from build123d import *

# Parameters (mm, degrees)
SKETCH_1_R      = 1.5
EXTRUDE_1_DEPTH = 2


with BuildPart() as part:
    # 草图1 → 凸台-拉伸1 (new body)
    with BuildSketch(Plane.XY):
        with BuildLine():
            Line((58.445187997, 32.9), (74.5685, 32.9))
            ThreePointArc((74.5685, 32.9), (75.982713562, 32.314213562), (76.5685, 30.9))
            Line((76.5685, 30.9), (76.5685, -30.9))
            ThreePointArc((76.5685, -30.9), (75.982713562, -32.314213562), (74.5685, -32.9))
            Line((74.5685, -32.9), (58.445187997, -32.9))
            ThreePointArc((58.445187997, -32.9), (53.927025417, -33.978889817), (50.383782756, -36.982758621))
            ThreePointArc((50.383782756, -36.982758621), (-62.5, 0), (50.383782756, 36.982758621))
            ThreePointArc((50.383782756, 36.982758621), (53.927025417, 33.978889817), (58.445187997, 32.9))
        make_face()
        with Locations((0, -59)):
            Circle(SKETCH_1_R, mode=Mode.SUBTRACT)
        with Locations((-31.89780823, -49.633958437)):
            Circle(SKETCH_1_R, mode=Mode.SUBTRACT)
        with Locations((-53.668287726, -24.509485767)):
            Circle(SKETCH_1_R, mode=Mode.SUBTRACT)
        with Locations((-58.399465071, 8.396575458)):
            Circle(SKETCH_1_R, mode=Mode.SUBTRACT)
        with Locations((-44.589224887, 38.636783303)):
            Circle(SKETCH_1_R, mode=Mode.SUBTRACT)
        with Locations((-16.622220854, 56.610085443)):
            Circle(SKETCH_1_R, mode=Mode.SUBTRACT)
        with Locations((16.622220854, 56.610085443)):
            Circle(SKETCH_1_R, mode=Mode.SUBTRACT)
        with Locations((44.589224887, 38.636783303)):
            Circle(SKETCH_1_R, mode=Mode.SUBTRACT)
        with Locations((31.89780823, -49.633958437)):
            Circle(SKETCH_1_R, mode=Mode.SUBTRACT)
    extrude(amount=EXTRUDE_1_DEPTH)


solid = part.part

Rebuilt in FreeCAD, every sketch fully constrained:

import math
import FreeCAD as App
import Part
import Sketcher

V = App.Vector
Q = App.Units.Quantity

doc = App.newDocument("Part")
body = doc.addObject("PartDesign::Body", "Body")

sketch1 = doc.addObject("Sketcher::SketchObject", "Sketch")
body.addObject(sketch1)
sketch1.AttachmentSupport = (doc.XY_Plane, [""])
sketch1.MapMode = "FlatFace"
sketch1.addGeometry(Part.LineSegment(V(74.5685, 32.9, 0), V(58.445188, 32.9, 0)), False)
sketch1.addGeometry(Part.ArcOfCircle(Part.Circle(V(58.445188, 42.9, 0), V(0, 0, 1), 10), math.radians(-143.720546), math.radians(-90)), False)
sketch1.addGeometry(Part.ArcOfCircle(Part.Circle(V(0, 0, 0), V(0, 0, 1), 62.5), math.radians(36.279454), math.radians(323.720546)), False)
sketch1.addGeometry(Part.ArcOfCircle(Part.Circle(V(58.445188, -42.9, 0), V(0, 0, 1), 10), math.radians(90), math.radians(143.720546)), False)
sketch1.addGeometry(Part.LineSegment(V(58.445188, -32.9, 0), V(74.5685, -32.9, 0)), False)
sketch1.addGeometry(Part.ArcOfCircle(Part.Circle(V(74.5685, -30.9, 0), V(0, 0, 1), 2), math.radians(-90), math.radians(0)), False)
sketch1.addGeometry(Part.LineSegment(V(76.5685, -30.9, 0), V(76.5685, 30.9, 0)), False)
sketch1.addGeometry(Part.ArcOfCircle(Part.Circle(V(74.5685, 30.9, 0), V(0, 0, 1), 2), math.radians(0), math.radians(90)), False)
sketch1.addGeometry(Part.Circle(V(31.897808, -49.633958, 0), V(0, 0, 1), 1.5), False)
sketch1.addGeometry(Part.Circle(V(0, -59, 0), V(0, 0, 1), 1.5), False)
sketch1.addGeometry(Part.Circle(V(-31.897808, -49.633958, 0), V(0, 0, 1), 1.5), False)
sketch1.addGeometry(Part.Circle(V(-53.668288, -24.509486, 0), V(0, 0, 1), 1.5), False)
sketch1.addGeometry(Part.Circle(V(44.589225, 38.636783, 0), V(0, 0, 1), 1.5), False)
sketch1.addGeometry(Part.Circle(V(16.622221, 56.610085, 0), V(0, 0, 1), 1.5), False)
sketch1.addGeometry(Part.Circle(V(-58.399465, 8.396575, 0), V(0, 0, 1), 1.5), False)
sketch1.addGeometry(Part.Circle(V(-16.622221, 56.610085, 0), V(0, 0, 1), 1.5), False)
sketch1.addGeometry(Part.Circle(V(-44.589225, 38.636783, 0), V(0, 0, 1), 1.5), False)
sketch1.addConstraint(Sketcher.Constraint("Tangent", 0, 2, 1, 2))
sketch1.addConstraint(Sketcher.Constraint("Tangent", 1, 1, 2, 1))
sketch1.addConstraint(Sketcher.Constraint("Tangent", 2, 2, 3, 2))
sketch1.addConstraint(Sketcher.Constraint("Tangent", 3, 1, 4, 1))
sketch1.addConstraint(Sketcher.Constraint("Tangent", 4, 2, 5, 1))
sketch1.addConstraint(Sketcher.Constraint("Tangent", 5, 2, 6, 1))
sketch1.addConstraint(Sketcher.Constraint("Tangent", 6, 2, 7, 1))
sketch1.addConstraint(Sketcher.Constraint("Tangent", 7, 2, 0, 1))
sketch1.addConstraint(Sketcher.Constraint("Horizontal", 0))
sketch1.addConstraint(Sketcher.Constraint("Horizontal", 4))
sketch1.addConstraint(Sketcher.Constraint("Vertical", 6))
sketch1.addConstraint(Sketcher.Constraint("Coincident", 2, 3, -1, 1))
sketch1.addConstraint(Sketcher.Constraint("Equal", 1, 3))
sketch1.addConstraint(Sketcher.Constraint("Equal", 5, 7))
sketch1.addConstraint(Sketcher.Constraint("Equal", 8, 9))
sketch1.addConstraint(Sketcher.Constraint("Equal", 9, 10))
sketch1.addConstraint(Sketcher.Constraint("Equal", 10, 11))
sketch1.addConstraint(Sketcher.Constraint("Equal", 11, 12))
sketch1.addConstraint(Sketcher.Constraint("Equal", 12, 13))
sketch1.addConstraint(Sketcher.Constraint("Equal", 13, 14))
sketch1.addConstraint(Sketcher.Constraint("Equal", 14, 15))
sketch1.addConstraint(Sketcher.Constraint("Equal", 15, 16))
sketch1.addConstraint(Sketcher.Constraint("Symmetric", 8, 3, 10, 3, -2))
sketch1.addConstraint(Sketcher.Constraint("Symmetric", 13, 3, 15, 3, -2))
sketch1.addConstraint(Sketcher.Constraint("Symmetric", 12, 3, 16, 3, -2))
sketch1.addConstraint(Sketcher.Constraint("PointOnObject", 9, 3, -2))
sketch1.addConstraint(Sketcher.Constraint("Vertical", 1, 3, 3, 3))
sketch1.addConstraint(Sketcher.Constraint("Diameter", 8, Q("3 mm")))
sketch1.addConstraint(Sketcher.Constraint("Radius", 1, Q("10 mm")))
sketch1.addConstraint(Sketcher.Constraint("Radius", 5, Q("2 mm")))
sketch1.addConstraint(Sketcher.Constraint("Radius", 2, Q("62.5 mm")))
sketch1.addConstraint(Sketcher.Constraint("DistanceY", 6, 1, 6, 2, Q("61.8 mm")))
sketch1.addConstraint(Sketcher.Constraint("DistanceY", 9, 3, -1, 1, Q("59 mm")))
sketch1.addConstraint(Sketcher.Constraint("DistanceX", -1, 1, 5, 3, Q("74.5685 mm")))
sketch1.addConstraint(Sketcher.Constraint("DistanceY", 8, 3, 2, 2, Q("12.6512 mm")))
sketch1.addConstraint(Sketcher.Constraint("DistanceX", -1, 1, 8, 3, Q("31.897808 mm")))
sketch1.addConstraint(Sketcher.Constraint("DistanceX", -1, 1, 13, 3, Q("16.622221 mm")))
sketch1.addConstraint(Sketcher.Constraint("DistanceX", 11, 3, 10, 3, Q("21.770479 mm")))
sketch1.addConstraint(Sketcher.Constraint("DistanceY", 11, 3, 14, 3, Q("32.906061 mm")))
sketch1.addConstraint(Sketcher.Constraint("DistanceY", 14, 3, 13, 3, Q("48.21351 mm")))
sketch1.addConstraint(Sketcher.Constraint("DistanceX", 14, 3, 16, 3, Q("13.81024 mm")))
sketch1.addConstraint(Sketcher.Constraint("DistanceY", 11, 3, 16, 3, Q("63.146269 mm")))
sketch1.addConstraint(Sketcher.Constraint("DistanceY", 11, 3, -1, 1, Q("24.509486 mm")))
sketch1.addConstraint(Sketcher.Constraint("DistanceX", -1, 1, 12, 3, Q("44.589225 mm")))
pad1 = doc.addObject("PartDesign::Pad", "Pad")
body.addObject(pad1)
pad1.Profile = sketch1
pad1.Length = 2

doc.recompute()
